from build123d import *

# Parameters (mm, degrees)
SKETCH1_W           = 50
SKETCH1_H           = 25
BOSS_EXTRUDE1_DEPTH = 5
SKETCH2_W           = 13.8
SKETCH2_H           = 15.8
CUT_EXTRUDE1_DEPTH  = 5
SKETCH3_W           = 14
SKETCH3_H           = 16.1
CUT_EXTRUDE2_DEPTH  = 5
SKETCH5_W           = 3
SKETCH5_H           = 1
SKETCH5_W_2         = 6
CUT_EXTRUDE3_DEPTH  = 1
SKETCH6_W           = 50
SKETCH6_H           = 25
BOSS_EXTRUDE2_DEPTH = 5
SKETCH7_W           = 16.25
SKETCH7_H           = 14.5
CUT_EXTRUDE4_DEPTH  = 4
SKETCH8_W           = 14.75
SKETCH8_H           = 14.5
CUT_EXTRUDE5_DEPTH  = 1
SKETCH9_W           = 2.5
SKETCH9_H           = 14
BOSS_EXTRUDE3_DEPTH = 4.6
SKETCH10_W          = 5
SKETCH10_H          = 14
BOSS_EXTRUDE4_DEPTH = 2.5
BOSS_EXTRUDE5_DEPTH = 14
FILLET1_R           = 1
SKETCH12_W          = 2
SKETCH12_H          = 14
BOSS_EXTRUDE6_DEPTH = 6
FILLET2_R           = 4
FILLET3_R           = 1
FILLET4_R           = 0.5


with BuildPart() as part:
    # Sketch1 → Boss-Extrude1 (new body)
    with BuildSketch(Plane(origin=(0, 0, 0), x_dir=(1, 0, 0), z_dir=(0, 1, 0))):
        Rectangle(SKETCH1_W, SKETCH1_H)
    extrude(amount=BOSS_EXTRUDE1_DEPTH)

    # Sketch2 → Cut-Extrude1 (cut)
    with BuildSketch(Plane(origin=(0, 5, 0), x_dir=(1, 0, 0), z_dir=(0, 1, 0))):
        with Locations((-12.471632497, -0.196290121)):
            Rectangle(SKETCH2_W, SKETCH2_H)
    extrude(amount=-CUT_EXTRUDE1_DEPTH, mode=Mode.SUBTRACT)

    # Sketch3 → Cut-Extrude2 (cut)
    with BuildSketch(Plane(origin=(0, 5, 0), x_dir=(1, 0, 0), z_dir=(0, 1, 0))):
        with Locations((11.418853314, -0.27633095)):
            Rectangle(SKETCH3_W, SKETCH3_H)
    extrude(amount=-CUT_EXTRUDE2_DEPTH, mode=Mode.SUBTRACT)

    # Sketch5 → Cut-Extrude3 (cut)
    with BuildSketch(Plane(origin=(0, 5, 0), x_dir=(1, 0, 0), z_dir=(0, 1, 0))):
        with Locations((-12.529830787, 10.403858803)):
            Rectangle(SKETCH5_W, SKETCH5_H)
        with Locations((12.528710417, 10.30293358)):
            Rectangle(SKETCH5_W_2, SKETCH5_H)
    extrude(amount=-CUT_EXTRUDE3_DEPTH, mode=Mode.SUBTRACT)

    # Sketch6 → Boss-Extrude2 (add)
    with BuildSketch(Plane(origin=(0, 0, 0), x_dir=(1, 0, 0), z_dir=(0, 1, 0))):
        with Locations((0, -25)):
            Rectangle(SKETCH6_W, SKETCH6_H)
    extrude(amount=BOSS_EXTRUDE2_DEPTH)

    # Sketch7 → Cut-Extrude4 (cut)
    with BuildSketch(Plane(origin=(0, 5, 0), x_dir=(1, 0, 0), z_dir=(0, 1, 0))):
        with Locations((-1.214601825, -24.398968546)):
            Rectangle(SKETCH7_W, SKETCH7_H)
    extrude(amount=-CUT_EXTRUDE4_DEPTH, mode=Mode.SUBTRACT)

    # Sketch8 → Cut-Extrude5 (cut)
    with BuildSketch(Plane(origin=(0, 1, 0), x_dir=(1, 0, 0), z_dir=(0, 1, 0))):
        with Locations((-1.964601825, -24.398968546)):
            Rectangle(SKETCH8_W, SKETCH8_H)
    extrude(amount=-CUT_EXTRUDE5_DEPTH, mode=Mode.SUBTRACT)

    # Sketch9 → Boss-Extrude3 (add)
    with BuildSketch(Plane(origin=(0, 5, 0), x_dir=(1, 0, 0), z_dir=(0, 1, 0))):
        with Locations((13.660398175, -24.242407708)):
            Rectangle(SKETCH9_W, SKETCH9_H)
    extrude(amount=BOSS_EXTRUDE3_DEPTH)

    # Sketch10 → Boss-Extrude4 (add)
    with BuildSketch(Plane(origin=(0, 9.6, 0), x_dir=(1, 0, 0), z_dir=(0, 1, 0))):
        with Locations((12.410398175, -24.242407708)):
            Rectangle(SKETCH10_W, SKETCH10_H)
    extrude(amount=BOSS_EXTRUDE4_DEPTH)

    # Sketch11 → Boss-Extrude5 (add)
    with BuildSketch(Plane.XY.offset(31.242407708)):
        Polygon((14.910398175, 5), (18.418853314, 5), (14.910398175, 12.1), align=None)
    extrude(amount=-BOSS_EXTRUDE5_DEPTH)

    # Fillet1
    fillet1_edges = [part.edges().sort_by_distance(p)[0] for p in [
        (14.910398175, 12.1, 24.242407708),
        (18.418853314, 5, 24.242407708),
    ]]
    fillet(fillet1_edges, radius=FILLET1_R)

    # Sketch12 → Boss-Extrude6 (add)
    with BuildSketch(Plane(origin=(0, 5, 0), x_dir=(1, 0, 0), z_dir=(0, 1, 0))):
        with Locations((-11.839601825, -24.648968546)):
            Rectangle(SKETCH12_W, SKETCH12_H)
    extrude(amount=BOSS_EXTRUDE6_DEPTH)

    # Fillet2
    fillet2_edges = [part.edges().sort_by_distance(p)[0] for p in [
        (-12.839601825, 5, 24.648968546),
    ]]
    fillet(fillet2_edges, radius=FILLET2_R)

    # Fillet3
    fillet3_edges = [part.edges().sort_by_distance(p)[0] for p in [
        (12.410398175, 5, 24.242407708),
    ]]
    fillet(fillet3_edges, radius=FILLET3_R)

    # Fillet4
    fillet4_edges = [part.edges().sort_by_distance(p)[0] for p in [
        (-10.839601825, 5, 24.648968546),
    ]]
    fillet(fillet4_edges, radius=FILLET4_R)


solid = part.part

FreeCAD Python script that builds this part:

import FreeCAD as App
import Part
import Sketcher
Q = App.Units.Quantity


def edges_at(feature, points):
    """Names of the edges that pass closest to the given points."""
    edges = feature.Shape.Edges
    near = lambda p: min(range(len(edges)), key=lambda i: edges[i].distToShape(Part.Vertex(*p))[0])
    return sorted({f"Edge{near(p) + 1}" for p in points})

doc = App.newDocument("Part")
body = doc.addObject("PartDesign::Body", "Body")

# Sketch on XZ plane
sketch1 = body.newObject("Sketcher::SketchObject", "Sketch")
sketch1.AttachmentSupport = (doc.getObject("XZ_Plane"), [""])
sketch1.MapMode = "FlatFace"
sketch1.addGeometry([
    Part.LineSegment(App.Vector(-25, -12.5, 0), App.Vector(-25, 12.5, 0)),
    Part.LineSegment(App.Vector(-25, 12.5, 0), App.Vector(25, 12.5, 0)),
    Part.LineSegment(App.Vector(25, 12.5, 0), App.Vector(25, -12.5, 0)),
    Part.LineSegment(App.Vector(25, -12.5, 0), App.Vector(-25, -12.5, 0)),
], False)
sketch1.addConstraint([
    Sketcher.Constraint("Coincident", 0, 2, 1, 1),
    Sketcher.Constraint("Coincident", 1, 2, 2, 1),
    Sketcher.Constraint("Coincident", 2, 2, 3, 1),
    Sketcher.Constraint("Coincident", 3, 2, 0, 1),
    Sketcher.Constraint("Vertical", 0),
    Sketcher.Constraint("Horizontal", 1),
    Sketcher.Constraint("Vertical", 2),
    Sketcher.Constraint("Horizontal", 3),
    Sketcher.Constraint("Symmetric", 0, 2, 2, 2, -1, 1),
    Sketcher.Constraint("DistanceX", 1, 1, 1, 2, Q("50 mm")),
    Sketcher.Constraint("DistanceY", 0, 1, 0, 2, Q("25 mm")),
])
pad1 = body.newObject("PartDesign::Pad", "Pad")
pad1.Profile = sketch1
pad1.Length = 5
pad1.Reversed = True

# Sketch on XZ plane
sketch2 = body.newObject("Sketcher::SketchObject", "Sketch001")
sketch2.AttachmentSupport = (doc.getObject("XZ_Plane"), [""])
sketch2.MapMode = "FlatFace"
sketch2.AttachmentOffset = App.Placement(App.Vector(0, 0, -5), App.Rotation())
sketch2.addGeometry([
    Part.LineSegment(App.Vector(-19.371632, -7.70371, 0), App.Vector(-19.371632, 8.09629, 0)),
    Part.LineSegment(App.Vector(-19.371632, 8.09629, 0), App.Vector(-5.571632, 8.09629, 0)),
    Part.LineSegment(App.Vector(-5.571632, 8.09629, 0), App.Vector(-5.571632, -7.70371, 0)),
    Part.LineSegment(App.Vector(-5.571632, -7.70371, 0), App.Vector(-19.371632, -7.70371, 0)),
], False)
sketch2.addConstraint([
    Sketcher.Constraint("Coincident", 0, 2, 1, 1),
    Sketcher.Constraint("Coincident", 1, 2, 2, 1),
    Sketcher.Constraint("Coincident", 2, 2, 3, 1),
    Sketcher.Constraint("Coincident", 3, 2, 0, 1),
    Sketcher.Constraint("Vertical", 0),
    Sketcher.Constraint("Horizontal", 1),
    Sketcher.Constraint("Vertical", 2),
    Sketcher.Constraint("Horizontal", 3),
    Sketcher.Constraint("DistanceX", 1, 1, 1, 2, Q("13.8 mm")),
    Sketcher.Constraint("DistanceY", 0, 1, 0, 2, Q("15.8 mm")),
    Sketcher.Constraint("DistanceY", -1, 1, 0, 2, Q("8.09629 mm")),
    Sketcher.Constraint("DistanceX", 0, 2, -1, 1, Q("19.371632 mm")),
])
pocket1 = body.newObject("PartDesign::Pocket", "Pocket")
pocket1.Profile = sketch2
pocket1.Length = 5
pocket1.Reversed = True

# Sketch on XZ plane
sketch3 = body.newObject("Sketcher::SketchObject", "Sketch002")
sketch3.AttachmentSupport = (doc.getObject("XZ_Plane"), [""])
sketch3.MapMode = "FlatFace"
sketch3.AttachmentOffset = App.Placement(App.Vector(0, 0, -5), App.Rotation())
sketch3.addGeometry([
    Part.LineSegment(App.Vector(4.418853, -7.773669, 0), App.Vector(4.418853, 8.326331, 0)),
    Part.LineSegment(App.Vector(4.418853, 8.326331, 0), App.Vector(18.418853, 8.326331, 0)),
    Part.LineSegment(App.Vector(18.418853, 8.326331, 0), App.Vector(18.418853, -7.773669, 0)),
    Part.LineSegment(App.Vector(18.418853, -7.773669, 0), App.Vector(4.418853, -7.773669, 0)),
], False)
sketch3.addConstraint([
    Sketcher.Constraint("Coincident", 0, 2, 1, 1),
    Sketcher.Constraint("Coincident", 1, 2, 2, 1),
    Sketcher.Constraint("Coincident", 2, 2, 3, 1),
    Sketcher.Constraint("Coincident", 3, 2, 0, 1),
    Sketcher.Constraint("Vertical", 0),
    Sketcher.Constraint("Horizontal", 1),
    Sketcher.Constraint("Vertical", 2),
    Sketcher.Constraint("Horizontal", 3),
    Sketcher.Constraint("DistanceX", 1, 1, 1, 2, Q("14 mm")),
    Sketcher.Constraint("DistanceY", 0, 1, 0, 2, Q("16.1 mm")),
    Sketcher.Constraint("DistanceY", -1, 1, 0, 2, Q("8.326331 mm")),
    Sketcher.Constraint("DistanceX", -1, 1, 0, 2, Q("4.418853 mm")),
])
pocket2 = body.newObject("PartDesign::Pocket", "Pocket001")
pocket2.Profile = sketch3
pocket2.Length = 5
pocket2.Reversed = True

# Sketch on XZ plane
sketch4 = body.newObject("Sketcher::SketchObject", "Sketch003")
sketch4.AttachmentSupport = (doc.getObject("XZ_Plane"), [""])
sketch4.MapMode = "FlatFace"
sketch4.AttachmentOffset = App.Placement(App.Vector(0, 0, -5), App.Rotation())
sketch4.addGeometry([
    Part.LineSegment(App.Vector(-14.029831, -10.903859, 0), App.Vector(-14.029831, -9.903859, 0)),  # 0
    Part.LineSegment(App.Vector(-14.029831, -9.903859, 0), App.Vector(-11.029831, -9.903859, 0)),  # 1
    Part.LineSegment(App.Vector(-11.029831, -9.903859, 0), App.Vector(-11.029831, -10.903859, 0)),  # 2
    Part.LineSegment(App.Vector(-11.029831, -10.903859, 0), App.Vector(-14.029831, -10.903859, 0)),  # 3
    Part.LineSegment(App.Vector(9.52871, -10.802934, 0), App.Vector(9.52871, -9.802934, 0)),  # 4
    Part.LineSegment(App.Vector(9.52871, -9.802934, 0), App.Vector(15.52871, -9.802934, 0)),  # 5
    Part.LineSegment(App.Vector(15.52871, -9.802934, 0), App.Vector(15.52871, -10.802934, 0)),  # 6
    Part.LineSegment(App.Vector(15.52871, -10.802934, 0), App.Vector(9.52871, -10.802934, 0)),  # 7
], False)
sketch4.addConstraint([
    Sketcher.Constraint("Coincident", 0, 2, 1, 1),
    Sketcher.Constraint("Coincident", 1, 2, 2, 1),
    Sketcher.Constraint("Coincident", 2, 2, 3, 1),
    Sketcher.Constraint("Coincident", 3, 2, 0, 1),
    Sketcher.Constraint("Coincident", 4, 2, 5, 1),
    Sketcher.Constraint("Coincident", 5, 2, 6, 1),
    Sketcher.Constraint("Coincident", 6, 2, 7, 1),
    Sketcher.Constraint("Coincident", 7, 2, 4, 1),
    Sketcher.Constraint("Vertical", 0),
    Sketcher.Constraint("Horizontal", 1),
    Sketcher.Constraint("Vertical", 2),
    Sketcher.Constraint("Horizontal", 3),
    Sketcher.Constraint("Vertical", 4),
    Sketcher.Constraint("Horizontal", 5),
    Sketcher.Constraint("Vertical", 6),
    Sketcher.Constraint("Horizontal", 7),
    Sketcher.Constraint("Equal", 2, 4),
    Sketcher.Constraint("DistanceX", 1, 1, 1, 2, Q("3 mm")),
    Sketcher.Constraint("DistanceX", 5, 1, 5, 2, Q("6 mm")),
    Sketcher.Constraint("DistanceY", 0, 1, 0, 2, Q("1 mm")),
    Sketcher.Constraint("DistanceX", 0, 2, -1, 1, Q("14.029831 mm")),
    Sketcher.Constraint("DistanceY", 0, 2, -1, 1, Q("9.903859 mm")),
    Sketcher.Constraint("DistanceX", -1, 1, 4, 2, Q("9.52871 mm")),
    Sketcher.Constraint("DistanceY", 4, 2, -1, 1, Q("9.802934 mm")),
])
pocket3 = body.newObject("PartDesign::Pocket", "Pocket002")
pocket3.Profile = sketch4
pocket3.Length = 1
pocket3.Reversed = True

# Sketch on XZ plane
sketch5 = body.newObject("Sketcher::SketchObject", "Sketch004")
sketch5.AttachmentSupport = (doc.getObject("XZ_Plane"), [""])
sketch5.MapMode = "FlatFace"
sketch5.addGeometry([
    Part.LineSegment(App.Vector(-25, 12.5, 0), App.Vector(-25, 37.5, 0)),
    Part.LineSegment(App.Vector(-25, 37.5, 0), App.Vector(25, 37.5, 0)),
    Part.LineSegment(App.Vector(25, 37.5, 0), App.Vector(25, 12.5, 0)),
    Part.LineSegment(App.Vector(25, 12.5, 0), App.Vector(-25, 12.5, 0)),
], False)
sketch5.addConstraint([
    Sketcher.Constraint("Coincident", 0, 2, 1, 1),
    Sketcher.Constraint("Coincident", 1, 2, 2, 1),
    Sketcher.Constraint("Coincident", 2, 2, 3, 1),
    Sketcher.Constraint("Coincident", 3, 2, 0, 1),
    Sketcher.Constraint("Vertical", 0),
    Sketcher.Constraint("Horizontal", 1),
    Sketcher.Constraint("Vertical", 2),
    Sketcher.Constraint("Horizontal", 3),
    Sketcher.Constraint("DistanceX", 1, 1, 1, 2, Q("50 mm")),
    Sketcher.Constraint("DistanceY", 0, 1, 0, 2, Q("25 mm")),
    Sketcher.Constraint("DistanceX", 0, 2, -1, 1, Q("25 mm")),
    Sketcher.Constraint("DistanceY", -1, 1, 0, 2, Q("37.5 mm")),
])
pad2 = body.newObject("PartDesign::Pad", "Pad001")
pad2.Profile = sketch5
pad2.Length = 5
pad2.Reversed = True

# Sketch on XZ plane
sketch6 = body.newObject("Sketcher::SketchObject", "Sketch005")
sketch6.AttachmentSupport = (doc.getObject("XZ_Plane"), [""])
sketch6.MapMode = "FlatFace"
sketch6.AttachmentOffset = App.Placement(App.Vector(0, 0, -5), App.Rotation())
sketch6.addGeometry([
    Part.LineSegment(App.Vector(-9.339602, 17.148969, 0), App.Vector(-9.339602, 31.648969, 0)),
    Part.LineSegment(App.Vector(-9.339602, 31.648969, 0), App.Vector(6.910398, 31.648969, 0)),
    Part.LineSegment(App.Vector(6.910398, 31.648969, 0), App.Vector(6.910398, 17.148969, 0)),
    Part.LineSegment(App.Vector(6.910398, 17.148969, 0), App.Vector(-9.339602, 17.148969, 0)),
], False)
sketch6.addConstraint([
    Sketcher.Constraint("Coincident", 0, 2, 1, 1),
    Sketcher.Constraint("Coincident", 1, 2, 2, 1),
    Sketcher.Constraint("Coincident", 2, 2, 3, 1),
    Sketcher.Constraint("Coincident", 3, 2, 0, 1),
    Sketcher.Constraint("Vertical", 0),
    Sketcher.Constraint("Horizontal", 1),
    Sketcher.Constraint("Vertical", 2),
    Sketcher.Constraint("Horizontal", 3),
    Sketcher.Constraint("DistanceY", 0, 1, 0, 2, Q("14.5 mm")),
    Sketcher.Constraint("DistanceX", 1, 1, 1, 2, Q("16.25 mm")),
    Sketcher.Constraint("DistanceX", 0, 2, -1, 1, Q("9.339602 mm")),
    Sketcher.Constraint("DistanceY", -1, 1, 0, 2, Q("31.648969 mm")),
])
pocket4 = body.newObject("PartDesign::Pocket", "Pocket003")
pocket4.Profile = sketch6
pocket4.Length = 4
pocket4.Reversed = True

# Sketch on XZ plane
sketch7 = body.newObject("Sketcher::SketchObject", "Sketch006")
sketch7.AttachmentSupport = (doc.getObject("XZ_Plane"), [""])
sketch7.MapMode = "FlatFace"
sketch7.AttachmentOffset = App.Placement(App.Vector(0, 0, -1), App.Rotation())
sketch7.addGeometry([
    Part.LineSegment(App.Vector(-9.339602, 17.148969, 0), App.Vector(-9.339602, 31.648969, 0)),
    Part.LineSegment(App.Vector(-9.339602, 31.648969, 0), App.Vector(5.410398, 31.648969, 0)),
    Part.LineSegment(App.Vector(5.410398, 31.648969, 0), App.Vector(5.410398, 17.148969, 0)),
    Part.LineSegment(App.Vector(5.410398, 17.148969, 0), App.Vector(-9.339602, 17.148969, 0)),
], False)
sketch7.addConstraint([
    Sketcher.Constraint("Coincident", 0, 2, 1, 1),
    Sketcher.Constraint("Coincident", 1, 2, 2, 1),
    Sketcher.Constraint("Coincident", 2, 2, 3, 1),
    Sketcher.Constraint("Coincident", 3, 2, 0, 1),
    Sketcher.Constraint("Vertical", 0),
    Sketcher.Constraint("Horizontal", 1),
    Sketcher.Constraint("Vertical", 2),
    Sketcher.Constraint("Horizontal", 3),
    Sketcher.Constraint("DistanceY", 0, 1, 0, 2, Q("14.5 mm")),
    Sketcher.Constraint("DistanceX", 1, 1, 1, 2, Q("14.75 mm")),
    Sketcher.Constraint("DistanceX", 0, 2, -1, 1, Q("9.339602 mm")),
    Sketcher.Constraint("DistanceY", -1, 1, 0, 2, Q("31.648969 mm")),
])
pocket5 = body.newObject("PartDesign::Pocket", "Pocket004")
pocket5.Profile = sketch7
pocket5.Length = 1
pocket5.Reversed = True

# Sketch on XZ plane
sketch8 = body.newObject("Sketcher::SketchObject", "Sketch007")
sketch8.AttachmentSupport = (doc.getObject("XZ_Plane"), [""])
sketch8.MapMode = "FlatFace"
sketch8.AttachmentOffset = App.Placement(App.Vector(0, 0, -5), App.Rotation())
sketch8.addGeometry([
    Part.LineSegment(App.Vector(12.410398, 17.242408, 0), App.Vector(12.410398, 31.242408, 0)),
    Part.LineSegment(App.Vector(12.410398, 31.242408, 0), App.Vector(14.910398, 31.242408, 0)),
    Part.LineSegment(App.Vector(14.910398, 31.242408, 0), App.Vector(14.910398, 17.242408, 0)),
    Part.LineSegment(App.Vector(14.910398, 17.242408, 0), App.Vector(12.410398, 17.242408, 0)),
], False)
sketch8.addConstraint([
    Sketcher.Constraint("Coincident", 0, 2, 1, 1),
    Sketcher.Constraint("Coincident", 1, 2, 2, 1),
    Sketcher.Constraint("Coincident", 2, 2, 3, 1),
    Sketcher.Constraint("Coincident", 3, 2, 0, 1),
    Sketcher.Constraint("Vertical", 0),
    Sketcher.Constraint("Horizontal", 1),
    Sketcher.Constraint("Vertical", 2),
    Sketcher.Constraint("Horizontal", 3),
    Sketcher.Constraint("DistanceY", 0, 1, 0, 2, Q("14 mm")),
    Sketcher.Constraint("DistanceX", 1, 1, 1, 2, Q("2.5 mm")),
    Sketcher.Constraint("DistanceX", -1, 1, 0, 2, Q("12.410398 mm")),
    Sketcher.Constraint("DistanceY", -1, 1, 0, 2, Q("31.242408 mm")),
])
pad3 = body.newObject("PartDesign::Pad", "Pad002")
pad3.Profile = sketch8
pad3.Length = 4.6
pad3.Reversed = True

# Sketch on XZ plane
sketch9 = body.newObject("Sketcher::SketchObject", "Sketch008")
sketch9.AttachmentSupport = (doc.getObject("XZ_Plane"), [""])
sketch9.MapMode = "FlatFace"
sketch9.AttachmentOffset = App.Placement(App.Vector(0, 0, -9.6), App.Rotation())
sketch9.addGeometry([
    Part.LineSegment(App.Vector(9.910398, 17.242408, 0), App.Vector(9.910398, 31.242408, 0)),
    Part.LineSegment(App.Vector(9.910398, 31.242408, 0), App.Vector(14.910398, 31.242408, 0)),
    Part.LineSegment(App.Vector(14.910398, 31.242408, 0), App.Vector(14.910398, 17.242408, 0)),
    Part.LineSegment(App.Vector(14.910398, 17.242408, 0), App.Vector(9.910398, 17.242408, 0)),
], False)
sketch9.addConstraint([
    Sketcher.Constraint("Coincident", 0, 2, 1, 1),
    Sketcher.Constraint("Coincident", 1, 2, 2, 1),
    Sketcher.Constraint("Coincident", 2, 2, 3, 1),
    Sketcher.Constraint("Coincident", 3, 2, 0, 1),
    Sketcher.Constraint("Vertical", 0),
    Sketcher.Constraint("Horizontal", 1),
    Sketcher.Constraint("Vertical", 2),
    Sketcher.Constraint("Horizontal", 3),
    Sketcher.Constraint("DistanceX", 1, 1, 1, 2, Q("5 mm")),
    Sketcher.Constraint("DistanceY", 0, 1, 0, 2, Q("14 mm")),
    Sketcher.Constraint("DistanceX", -1, 1, 0, 2, Q("9.910398 mm")),
    Sketcher.Constraint("DistanceY", -1, 1, 0, 2, Q("31.242408 mm")),
])
pad4 = body.newObject("PartDesign::Pad", "Pad003")
pad4.Profile = sketch9
pad4.Length = 2.5
pad4.Reversed = True

# Sketch on XY plane
sketch10 = body.newObject("Sketcher::SketchObject", "Sketch009")
sketch10.AttachmentSupport = (doc.getObject("XY_Plane"), [""])
sketch10.MapMode = "FlatFace"
sketch10.AttachmentOffset = App.Placement(App.Vector(0, 0, 31.242408), App.Rotation())
sketch10.addGeometry([
    Part.LineSegment(App.Vector(14.910398, 5, 0), App.Vector(18.418853, 5, 0)),
    Part.LineSegment(App.Vector(18.418853, 5, 0), App.Vector(14.910398, 12.1, 0)),
    Part.LineSegment(App.Vector(14.910398, 12.1, 0), App.Vector(14.910398, 5, 0)),
], False)
sketch10.addConstraint([
    Sketcher.Constraint("Coincident", 0, 2, 1, 1),
    Sketcher.Constraint("Coincident", 1, 2, 2, 1),
    Sketcher.Constraint("Coincident", 2, 2, 0, 1),
    Sketcher.Constraint("Horizontal", 0),
    Sketcher.Constraint("Vertical", 2),
    Sketcher.Constraint("DistanceY", 2, 2, 2, 1, Q("7.1 mm")),
    Sketcher.Constraint("DistanceY", -1, 1, 0, 2, Q("5 mm")),
    Sketcher.Constraint("DistanceX", -1, 1, 1, 2, Q("14.910398 mm")),
    Sketcher.Constraint("Distance", 1, Q("7.919549 mm")),
])
pad5 = body.newObject("PartDesign::Pad", "Pad004")
pad5.Profile = sketch10
pad5.Length = 14
pad5.Reversed = True
doc.recompute()

fillet = body.newObject("PartDesign::Fillet", "Fillet")
fillet.Base = (pad5, edges_at(pad5, [(14.91, 12.1, 24.242), (18.419, 5, 24.242)]))
fillet.Radius = 1

# Sketch on XZ plane
sketch11 = body.newObject("Sketcher::SketchObject", "Sketch010")
sketch11.AttachmentSupport = (doc.getObject("XZ_Plane"), [""])
sketch11.MapMode = "FlatFace"
sketch11.AttachmentOffset = App.Placement(App.Vector(0, 0, -5), App.Rotation())
sketch11.addGeometry([
    Part.LineSegment(App.Vector(-12.839602, 17.648969, 0), App.Vector(-12.839602, 31.648969, 0)),
    Part.LineSegment(App.Vector(-12.839602, 31.648969, 0), App.Vector(-10.839602, 31.648969, 0)),
    Part.LineSegment(App.Vector(-10.839602, 31.648969, 0), App.Vector(-10.839602, 17.648969, 0)),
    Part.LineSegment(App.Vector(-10.839602, 17.648969, 0), App.Vector(-12.839602, 17.648969, 0)),
], False)
sketch11.addConstraint([
    Sketcher.Constraint("Coincident", 0, 2, 1, 1),
    Sketcher.Constraint("Coincident", 1, 2, 2, 1),
    Sketcher.Constraint("Coincident", 2, 2, 3, 1),
    Sketcher.Constraint("Coincident", 3, 2, 0, 1),
    Sketcher.Constraint("Vertical", 0),
    Sketcher.Constraint("Horizontal", 1),
    Sketcher.Constraint("Vertical", 2),
    Sketcher.Constraint("Horizontal", 3),
    Sketcher.Constraint("DistanceX", 1, 1, 1, 2, Q("2 mm")),
    Sketcher.Constraint("DistanceY", 0, 1, 0, 2, Q("14 mm")),
    Sketcher.Constraint("DistanceX", 0, 2, -1, 1, Q("12.839602 mm")),
    Sketcher.Constraint("DistanceY", -1, 1, 0, 2, Q("31.648969 mm")),
])
pad6 = body.newObject("PartDesign::Pad", "Pad005")
pad6.Profile = sketch11
pad6.Length = 6
pad6.Reversed = True
doc.recompute()

fillet2 = body.newObject("PartDesign::Fillet", "Fillet001")
fillet2.Base = (pad6, edges_at(pad6, [(-12.84, 5, 24.649)]))
fillet2.Radius = 4
doc.recompute()

fillet3 = body.newObject("PartDesign::Fillet", "Fillet002")
fillet3.Base = (fillet2, edges_at(fillet2, [(12.41, 5, 24.242)]))
fillet3.Radius = 1
doc.recompute()

fillet4 = body.newObject("PartDesign::Fillet", "Fillet003")
fillet4.Base = (fillet3, edges_at(fillet3, [(-10.84, 5, 24.649)]))
fillet4.Radius = 0.5

doc.recompute()
